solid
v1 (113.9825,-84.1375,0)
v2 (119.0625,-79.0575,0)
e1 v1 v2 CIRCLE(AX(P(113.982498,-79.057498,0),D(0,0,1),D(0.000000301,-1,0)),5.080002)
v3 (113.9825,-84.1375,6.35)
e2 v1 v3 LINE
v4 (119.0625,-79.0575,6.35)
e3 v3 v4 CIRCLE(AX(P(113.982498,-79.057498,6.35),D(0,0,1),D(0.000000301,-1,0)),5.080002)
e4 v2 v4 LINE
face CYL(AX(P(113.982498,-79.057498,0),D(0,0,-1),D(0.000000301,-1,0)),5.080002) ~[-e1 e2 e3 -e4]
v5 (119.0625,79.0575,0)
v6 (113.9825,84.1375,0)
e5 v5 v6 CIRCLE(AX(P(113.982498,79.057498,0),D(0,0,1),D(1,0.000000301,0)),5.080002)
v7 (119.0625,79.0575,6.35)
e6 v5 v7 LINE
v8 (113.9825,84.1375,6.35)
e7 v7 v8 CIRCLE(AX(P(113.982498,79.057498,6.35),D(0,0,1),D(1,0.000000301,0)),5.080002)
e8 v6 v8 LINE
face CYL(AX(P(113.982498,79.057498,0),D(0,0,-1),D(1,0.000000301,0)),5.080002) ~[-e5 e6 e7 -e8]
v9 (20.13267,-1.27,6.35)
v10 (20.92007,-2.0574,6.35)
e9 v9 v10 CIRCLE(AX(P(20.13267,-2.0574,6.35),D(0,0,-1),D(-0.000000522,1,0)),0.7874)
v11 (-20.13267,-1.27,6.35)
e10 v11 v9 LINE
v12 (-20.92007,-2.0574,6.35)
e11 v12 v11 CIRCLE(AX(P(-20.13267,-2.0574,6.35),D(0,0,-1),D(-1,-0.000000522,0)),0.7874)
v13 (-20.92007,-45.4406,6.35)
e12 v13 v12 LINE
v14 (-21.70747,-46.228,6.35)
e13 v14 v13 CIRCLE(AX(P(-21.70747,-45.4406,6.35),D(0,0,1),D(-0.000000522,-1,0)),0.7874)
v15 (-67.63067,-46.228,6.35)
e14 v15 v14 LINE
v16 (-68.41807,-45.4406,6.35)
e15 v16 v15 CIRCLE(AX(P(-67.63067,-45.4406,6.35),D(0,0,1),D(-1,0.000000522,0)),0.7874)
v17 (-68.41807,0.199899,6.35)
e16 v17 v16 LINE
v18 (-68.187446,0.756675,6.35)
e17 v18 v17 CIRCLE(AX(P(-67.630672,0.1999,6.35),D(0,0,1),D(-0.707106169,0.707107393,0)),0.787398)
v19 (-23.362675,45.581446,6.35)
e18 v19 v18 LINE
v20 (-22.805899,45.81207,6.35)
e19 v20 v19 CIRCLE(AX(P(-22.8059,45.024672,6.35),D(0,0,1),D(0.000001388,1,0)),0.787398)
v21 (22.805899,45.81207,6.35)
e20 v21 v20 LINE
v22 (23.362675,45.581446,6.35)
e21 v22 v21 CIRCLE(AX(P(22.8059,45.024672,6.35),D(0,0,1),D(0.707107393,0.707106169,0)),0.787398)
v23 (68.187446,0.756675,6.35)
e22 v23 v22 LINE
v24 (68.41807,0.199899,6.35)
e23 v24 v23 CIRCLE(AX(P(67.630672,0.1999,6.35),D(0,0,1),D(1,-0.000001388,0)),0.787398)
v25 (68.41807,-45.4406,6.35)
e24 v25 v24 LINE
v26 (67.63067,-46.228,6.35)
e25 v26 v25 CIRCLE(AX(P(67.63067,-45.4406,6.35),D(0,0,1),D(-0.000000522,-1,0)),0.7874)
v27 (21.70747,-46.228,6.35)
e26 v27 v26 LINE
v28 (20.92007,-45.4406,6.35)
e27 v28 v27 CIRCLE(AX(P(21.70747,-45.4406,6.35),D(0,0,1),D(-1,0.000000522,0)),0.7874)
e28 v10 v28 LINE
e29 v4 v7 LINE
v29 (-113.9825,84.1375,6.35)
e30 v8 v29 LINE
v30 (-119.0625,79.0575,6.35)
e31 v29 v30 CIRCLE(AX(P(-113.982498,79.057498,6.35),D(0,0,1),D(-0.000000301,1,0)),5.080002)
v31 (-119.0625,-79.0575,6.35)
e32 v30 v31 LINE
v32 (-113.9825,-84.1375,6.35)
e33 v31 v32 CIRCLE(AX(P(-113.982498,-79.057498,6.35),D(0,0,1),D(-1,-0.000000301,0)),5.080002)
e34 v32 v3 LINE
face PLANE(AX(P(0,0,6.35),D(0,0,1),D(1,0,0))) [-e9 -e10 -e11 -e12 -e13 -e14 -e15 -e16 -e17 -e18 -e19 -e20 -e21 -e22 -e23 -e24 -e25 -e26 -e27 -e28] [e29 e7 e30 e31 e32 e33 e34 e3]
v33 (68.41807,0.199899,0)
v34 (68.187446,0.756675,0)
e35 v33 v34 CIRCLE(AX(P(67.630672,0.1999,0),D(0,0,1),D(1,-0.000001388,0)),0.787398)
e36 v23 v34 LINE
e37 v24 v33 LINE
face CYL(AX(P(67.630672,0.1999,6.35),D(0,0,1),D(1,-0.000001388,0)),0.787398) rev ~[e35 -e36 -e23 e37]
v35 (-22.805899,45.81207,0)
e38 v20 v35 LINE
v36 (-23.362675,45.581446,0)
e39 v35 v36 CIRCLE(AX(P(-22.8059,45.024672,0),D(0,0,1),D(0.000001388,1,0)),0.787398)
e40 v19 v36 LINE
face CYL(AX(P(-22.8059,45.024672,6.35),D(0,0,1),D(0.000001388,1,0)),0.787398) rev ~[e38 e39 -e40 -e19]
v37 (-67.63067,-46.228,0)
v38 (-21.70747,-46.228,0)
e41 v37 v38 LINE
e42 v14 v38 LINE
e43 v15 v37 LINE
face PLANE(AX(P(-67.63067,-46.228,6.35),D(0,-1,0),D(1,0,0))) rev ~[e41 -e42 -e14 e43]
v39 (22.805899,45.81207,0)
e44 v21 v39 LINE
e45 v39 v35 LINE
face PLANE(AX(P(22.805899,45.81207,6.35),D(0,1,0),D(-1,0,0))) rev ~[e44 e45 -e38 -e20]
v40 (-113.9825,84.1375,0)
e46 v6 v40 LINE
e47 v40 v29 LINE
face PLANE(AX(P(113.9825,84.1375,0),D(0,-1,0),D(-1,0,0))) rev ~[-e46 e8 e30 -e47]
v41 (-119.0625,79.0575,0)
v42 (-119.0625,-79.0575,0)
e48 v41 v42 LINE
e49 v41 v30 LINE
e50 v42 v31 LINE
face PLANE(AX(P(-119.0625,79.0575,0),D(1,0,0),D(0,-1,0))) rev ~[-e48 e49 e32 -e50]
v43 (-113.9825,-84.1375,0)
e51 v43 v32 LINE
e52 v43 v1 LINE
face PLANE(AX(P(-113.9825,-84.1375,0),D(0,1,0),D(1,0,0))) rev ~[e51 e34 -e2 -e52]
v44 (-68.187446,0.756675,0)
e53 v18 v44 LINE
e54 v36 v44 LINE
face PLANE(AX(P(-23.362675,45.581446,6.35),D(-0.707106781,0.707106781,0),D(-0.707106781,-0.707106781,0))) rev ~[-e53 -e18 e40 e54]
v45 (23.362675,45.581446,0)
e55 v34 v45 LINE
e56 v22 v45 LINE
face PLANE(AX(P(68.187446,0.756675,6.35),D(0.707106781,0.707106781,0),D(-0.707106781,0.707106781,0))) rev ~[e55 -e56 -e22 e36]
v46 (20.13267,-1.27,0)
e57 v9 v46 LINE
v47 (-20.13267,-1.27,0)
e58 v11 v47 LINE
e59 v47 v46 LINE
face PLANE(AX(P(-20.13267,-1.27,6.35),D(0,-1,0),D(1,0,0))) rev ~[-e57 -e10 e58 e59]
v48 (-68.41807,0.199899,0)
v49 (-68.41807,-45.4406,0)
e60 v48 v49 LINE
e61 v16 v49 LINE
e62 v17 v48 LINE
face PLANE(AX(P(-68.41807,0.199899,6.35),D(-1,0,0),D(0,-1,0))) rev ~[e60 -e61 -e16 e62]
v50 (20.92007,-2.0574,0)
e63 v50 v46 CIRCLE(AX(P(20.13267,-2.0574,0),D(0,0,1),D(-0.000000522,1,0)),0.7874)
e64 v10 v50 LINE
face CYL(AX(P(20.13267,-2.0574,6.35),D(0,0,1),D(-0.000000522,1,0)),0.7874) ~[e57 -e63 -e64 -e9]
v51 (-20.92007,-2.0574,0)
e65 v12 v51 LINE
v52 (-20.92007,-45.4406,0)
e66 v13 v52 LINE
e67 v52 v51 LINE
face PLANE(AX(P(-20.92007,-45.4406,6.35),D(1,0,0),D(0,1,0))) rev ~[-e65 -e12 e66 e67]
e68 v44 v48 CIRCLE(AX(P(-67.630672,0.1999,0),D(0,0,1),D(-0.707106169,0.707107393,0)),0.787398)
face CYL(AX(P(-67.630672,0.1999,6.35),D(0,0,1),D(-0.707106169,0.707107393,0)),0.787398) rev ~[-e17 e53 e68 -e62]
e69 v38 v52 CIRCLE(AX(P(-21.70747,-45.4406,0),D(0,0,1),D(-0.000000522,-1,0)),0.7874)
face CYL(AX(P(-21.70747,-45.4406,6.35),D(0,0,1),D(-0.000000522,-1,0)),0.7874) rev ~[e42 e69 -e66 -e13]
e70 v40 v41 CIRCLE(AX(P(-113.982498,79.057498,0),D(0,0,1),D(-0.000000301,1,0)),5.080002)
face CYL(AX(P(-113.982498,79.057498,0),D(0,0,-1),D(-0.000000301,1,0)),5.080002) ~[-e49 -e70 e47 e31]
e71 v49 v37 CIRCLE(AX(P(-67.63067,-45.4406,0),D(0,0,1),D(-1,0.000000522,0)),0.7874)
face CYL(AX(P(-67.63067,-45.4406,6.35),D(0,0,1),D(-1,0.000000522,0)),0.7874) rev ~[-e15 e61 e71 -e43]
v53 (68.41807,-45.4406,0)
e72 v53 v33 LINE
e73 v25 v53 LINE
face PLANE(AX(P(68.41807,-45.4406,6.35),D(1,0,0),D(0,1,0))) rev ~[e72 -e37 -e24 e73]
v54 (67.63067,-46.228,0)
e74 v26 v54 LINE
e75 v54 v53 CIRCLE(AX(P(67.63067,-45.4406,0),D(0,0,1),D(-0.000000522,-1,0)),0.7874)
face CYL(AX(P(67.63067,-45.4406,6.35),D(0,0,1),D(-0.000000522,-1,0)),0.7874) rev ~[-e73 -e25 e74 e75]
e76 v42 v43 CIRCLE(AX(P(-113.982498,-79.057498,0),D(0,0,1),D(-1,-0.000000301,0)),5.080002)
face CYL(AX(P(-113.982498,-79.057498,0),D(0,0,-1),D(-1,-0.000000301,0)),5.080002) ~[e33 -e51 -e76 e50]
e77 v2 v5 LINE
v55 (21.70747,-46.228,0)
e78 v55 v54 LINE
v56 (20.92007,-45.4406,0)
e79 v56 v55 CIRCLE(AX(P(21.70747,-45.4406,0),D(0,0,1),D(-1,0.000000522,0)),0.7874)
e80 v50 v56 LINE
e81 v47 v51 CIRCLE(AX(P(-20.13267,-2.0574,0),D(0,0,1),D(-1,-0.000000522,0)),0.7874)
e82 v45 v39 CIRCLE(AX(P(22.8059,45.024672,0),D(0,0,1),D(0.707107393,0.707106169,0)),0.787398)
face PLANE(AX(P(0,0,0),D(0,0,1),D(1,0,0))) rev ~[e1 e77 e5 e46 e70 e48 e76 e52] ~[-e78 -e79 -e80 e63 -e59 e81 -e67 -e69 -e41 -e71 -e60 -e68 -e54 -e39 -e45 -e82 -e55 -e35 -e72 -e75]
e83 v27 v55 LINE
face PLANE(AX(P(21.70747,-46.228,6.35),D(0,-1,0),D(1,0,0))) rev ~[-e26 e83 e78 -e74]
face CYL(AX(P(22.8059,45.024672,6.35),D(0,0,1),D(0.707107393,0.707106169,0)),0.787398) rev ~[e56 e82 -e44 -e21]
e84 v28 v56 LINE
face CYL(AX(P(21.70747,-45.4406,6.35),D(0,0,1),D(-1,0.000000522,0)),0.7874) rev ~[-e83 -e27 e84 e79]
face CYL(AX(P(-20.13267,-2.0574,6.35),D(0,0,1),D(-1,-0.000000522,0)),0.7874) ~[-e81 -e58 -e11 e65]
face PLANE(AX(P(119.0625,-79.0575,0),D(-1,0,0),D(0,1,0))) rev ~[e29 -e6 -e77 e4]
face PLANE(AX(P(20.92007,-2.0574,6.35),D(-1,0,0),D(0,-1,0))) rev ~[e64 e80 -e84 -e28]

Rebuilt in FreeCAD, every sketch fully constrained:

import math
import FreeCAD as App
import Part
import Sketcher

V = App.Vector
Q = App.Units.Quantity

doc = App.newDocument("Part")
body = doc.addObject("PartDesign::Body", "Body")

# Sketch on XY plane
sketch1 = body.newObject("Sketcher::SketchObject", "Sketch")
sketch1.AttachmentSupport = (doc.getObject("XY_Plane"), [""])
sketch1.MapMode = "FlatFace"
sketch1.addGeometry(Part.LineSegment(V(113.9825, 84.1375, 0), V(-113.9825, 84.1375, 0)), False)
sketch1.addGeometry(Part.ArcOfCircle(Part.Circle(V(-113.982498, 79.057498, 0), V(0, 0, 1), 5.080002), math.radians(90.000017), math.radians(179.999983)), False)
sketch1.addGeometry(Part.LineSegment(V(-119.0625, 79.0575, 0), V(-119.0625, -79.0575, 0)), False)
sketch1.addGeometry(Part.ArcOfCircle(Part.Circle(V(-113.982498, -79.057498, 0), V(0, 0, 1), 5.080002), math.radians(-179.999983), math.radians(-90.000017)), False)
sketch1.addGeometry(Part.LineSegment(V(-113.9825, -84.1375, 0), V(113.9825, -84.1375, 0)), False)
sketch1.addGeometry(Part.ArcOfCircle(Part.Circle(V(113.982498, -79.057498, 0), V(0, 0, 1), 5.080002), math.radians(-89.999983), math.radians(-0.000017)), False)
sketch1.addGeometry(Part.LineSegment(V(119.0625, -79.0575, 0), V(119.0625, 79.0575, 0)), False)
sketch1.addGeometry(Part.ArcOfCircle(Part.Circle(V(113.982498, 79.057498, 0), V(0, 0, 1), 5.080002), math.radians(0.000017), math.radians(89.999983)), False)
sketch1.addConstraint(Sketcher.Constraint("Tangent", 0, 2, 1, 1))
sketch1.addConstraint(Sketcher.Constraint("Tangent", 1, 2, 2, 1))
sketch1.addConstraint(Sketcher.Constraint("Tangent", 2, 2, 3, 1))
sketch1.addConstraint(Sketcher.Constraint("Tangent", 3, 2, 4, 1))
sketch1.addConstraint(Sketcher.Constraint("Tangent", 4, 2, 5, 1))
sketch1.addConstraint(Sketcher.Constraint("Tangent", 5, 2, 6, 1))
sketch1.addConstraint(Sketcher.Constraint("Tangent", 6, 2, 7, 1))
sketch1.addConstraint(Sketcher.Constraint("Tangent", 7, 2, 0, 1))
sketch1.addConstraint(Sketcher.Constraint("Horizontal", 0))
sketch1.addConstraint(Sketcher.Constraint("Vertical", 2))
sketch1.addConstraint(Sketcher.Constraint("Horizontal", 4))
sketch1.addConstraint(Sketcher.Constraint("Vertical", 6))
sketch1.addConstraint(Sketcher.Constraint("Equal", 1, 3))
sketch1.addConstraint(Sketcher.Constraint("Equal", 3, 5))
sketch1.addConstraint(Sketcher.Constraint("Equal", 5, 7))
sketch1.addConstraint(Sketcher.Constraint("Symmetric", 1, 3, 5, 3, -1, 1))
sketch1.addConstraint(Sketcher.Constraint("Radius", 1, Q("0.2000001 in")))
sketch1.addConstraint(Sketcher.Constraint("DistanceX", 0, 2, 0, 1, Q("8.975 in")))
sketch1.addConstraint(Sketcher.Constraint("DistanceY", 2, 2, 2, 1, Q("6.225 in")))
pad1 = body.newObject("PartDesign::Pad", "Pad")
pad1.Profile = sketch1
pad1.Length = Q("0.25 in")

# Sketch on XY plane
sketch2 = body.newObject("Sketcher::SketchObject", "Sketch001")
sketch2.AttachmentSupport = (doc.getObject("XY_Plane"), [""])
sketch2.MapMode = "FlatFace"
sketch2.AttachmentOffset = App.Placement(V(0, 0, 0.25 * 25.4), App.Rotation())
sketch2.addGeometry(Part.LineSegment(V(22.606, 44.54207, 0), V(-22.606, 44.54207, 0)), False)
sketch2.addGeometry(Part.LineSegment(V(-22.606, 44.54207, 0), V(-67.14807, 0, 0)), False)
sketch2.addGeometry(Part.LineSegment(V(-67.14807, 0, 0), V(-67.14807, -44.958, 0)), False)
sketch2.addGeometry(Part.LineSegment(V(-67.14807, -44.958, 0), V(-22.19007, -44.958, 0)), False)
sketch2.addGeometry(Part.LineSegment(V(-22.19007, -44.958, 0), V(-22.19007, 0, 0)), False)
sketch2.addGeometry(Part.LineSegment(V(-22.19007, 0, 0), V(22.19007, 0, 0)), False)
sketch2.addGeometry(Part.LineSegment(V(22.19007, 0, 0), V(22.19007, -44.958, 0)), False)
sketch2.addGeometry(Part.LineSegment(V(22.19007, -44.958, 0), V(67.14807, -44.958, 0)), False)
sketch2.addGeometry(Part.LineSegment(V(67.14807, -44.958, 0), V(67.14807, 0, 0)), False)
sketch2.addGeometry(Part.LineSegment(V(67.14807, 0, 0), V(22.606, 44.54207, 0)), False)
sketch2.addConstraint(Sketcher.Constraint("Coincident", 0, 2, 1, 1))
sketch2.addConstraint(Sketcher.Constraint("Coincident", 1, 2, 2, 1))
sketch2.addConstraint(Sketcher.Constraint("Coincident", 2, 2, 3, 1))
sketch2.addConstraint(Sketcher.Constraint("Coincident", 3, 2, 4, 1))
sketch2.addConstraint(Sketcher.Constraint("Coincident", 4, 2, 5, 1))
sketch2.addConstraint(Sketcher.Constraint("Coincident", 5, 2, 6, 1))
sketch2.addConstraint(Sketcher.Constraint("Coincident", 6, 2, 7, 1))
sketch2.addConstraint(Sketcher.Constraint("Coincident", 7, 2, 8, 1))
sketch2.addConstraint(Sketcher.Constraint("Coincident", 8, 2, 9, 1))
sketch2.addConstraint(Sketcher.Constraint("Coincident", 9, 2, 0, 1))
sketch2.addConstraint(Sketcher.Constraint("Horizontal", 0))
sketch2.addConstraint(Sketcher.Constraint("Vertical", 2))
sketch2.addConstraint(Sketcher.Constraint("Horizontal", 3))
sketch2.addConstraint(Sketcher.Constraint("Vertical", 4))
sketch2.addConstraint(Sketcher.Constraint("Horizontal", 5))
sketch2.addConstraint(Sketcher.Constraint("Vertical", 6))
sketch2.addConstraint(Sketcher.Constraint("Horizontal", 7))
sketch2.addConstraint(Sketcher.Constraint("Vertical", 8))
sketch2.addConstraint(Sketcher.Constraint("Symmetric", 4, 2, 5, 2, -1, 1))
sketch2.addConstraint(Sketcher.Constraint("Symmetric", 1, 2, 8, 2, -1, 1))
sketch2.addConstraint(Sketcher.Constraint("PointOnObject", 1, 2, -1))
sketch2.addConstraint(Sketcher.Constraint("Perpendicular", 1, 9))
sketch2.addConstraint(Sketcher.Constraint("Horizontal", 3, 2, 6, 2))
sketch2.addConstraint(Sketcher.Constraint("Equal", 7, 2))
sketch2.addConstraint(Sketcher.Constraint("Equal", 1, 9))
sketch2.addConstraint(Sketcher.Constraint("DistanceX", 0, 2, 0, 1, Q("1.78 in")))
sketch2.addConstraint(Sketcher.Constraint("DistanceX", 3, 1, 3, 2, Q("1.77 in")))
sketch2.addConstraint(Sketcher.Constraint("Distance", 1, Q("2.48 in")))
pocket1 = body.newObject("PartDesign::Pocket", "Pocket")
pocket1.Profile = sketch2
pocket1.Length = Q("1 in")

# Sketch on XY plane
sketch3 = body.newObject("Sketcher::SketchObject", "Sketch002")
sketch3.AttachmentSupport = (doc.getObject("XY_Plane"), [""])
sketch3.MapMode = "FlatFace"
sketch3.AttachmentOffset = App.Placement(V(0, 0, 0.25 * 25.4), App.Rotation())
sketch3.addGeometry(Part.ArcOfCircle(Part.Circle(V(-22.8059, 45.024672, 0), V(0, 0, 1), 0.787398), math.radians(89.99992), math.radians(135.00005)), False)
sketch3.addGeometry(Part.LineSegment(V(-23.362675, 45.581446, 0), V(-68.187446, 0.756675, 0)), False)
sketch3.addGeometry(Part.ArcOfCircle(Part.Circle(V(-67.630672, 0.1999, 0), V(0, 0, 1), 0.787398), math.radians(134.99995), math.radians(180.00008)), False)
sketch3.addGeometry(Part.LineSegment(V(-68.41807, 0.199899, 0), V(-68.41807, -45.4406, 0)), False)
sketch3.addGeometry(Part.ArcOfCircle(Part.Circle(V(-67.63067, -45.4406, 0), V(0, 0, 1), 0.7874), math.radians(179.99997), math.radians(270.00003)), False)
sketch3.addGeometry(Part.LineSegment(V(-67.63067, -46.228, 0), V(-21.70747, -46.228, 0)), False)
sketch3.addGeometry(Part.ArcOfCircle(Part.Circle(V(-21.70747, -45.4406, 0), V(0, 0, 1), 0.7874), math.radians(-90.00003), math.radians(0.00003)), False)
sketch3.addGeometry(Part.LineSegment(V(-20.92007, -45.4406, 0), V(-20.92007, -2.0574, 0)), False)
sketch3.addGeometry(Part.ArcOfCircle(Part.Circle(V(-20.13267, -2.0574, 0), V(0, 0, 1), 0.7874), math.radians(89.99997), math.radians(180.00003)), False)
sketch3.addGeometry(Part.LineSegment(V(-20.13267, -1.27, 0), V(20.13267, -1.27, 0)), False)
sketch3.addGeometry(Part.ArcOfCircle(Part.Circle(V(20.13267, -2.0574, 0), V(0, 0, 1), 0.7874), math.radians(-0.00003), math.radians(90.00003)), False)
sketch3.addGeometry(Part.LineSegment(V(20.92007, -2.0574, 0), V(20.92007, -45.4406, 0)), False)
sketch3.addGeometry(Part.ArcOfCircle(Part.Circle(V(21.70747, -45.4406, 0), V(0, 0, 1), 0.7874), math.radians(179.99997), math.radians(270.00003)), False)
sketch3.addGeometry(Part.LineSegment(V(21.70747, -46.228, 0), V(67.63067, -46.228, 0)), False)
sketch3.addGeometry(Part.ArcOfCircle(Part.Circle(V(67.63067, -45.4406, 0), V(0, 0, 1), 0.7874), math.radians(-90.00003), math.radians(0.00003)), False)
sketch3.addGeometry(Part.LineSegment(V(68.41807, -45.4406, 0), V(68.41807, 0.199899, 0)), False)
sketch3.addGeometry(Part.ArcOfCircle(Part.Circle(V(67.630672, 0.1999, 0), V(0, 0, 1), 0.787398), math.radians(-0.00008), math.radians(45.00005)), False)
sketch3.addGeometry(Part.LineSegment(V(68.187446, 0.756675, 0), V(23.362675, 45.581446, 0)), False)
sketch3.addGeometry(Part.ArcOfCircle(Part.Circle(V(22.8059, 45.024672, 0), V(0, 0, 1), 0.787398), math.radians(44.99995), math.radians(90.00008)), False)
sketch3.addGeometry(Part.LineSegment(V(22.805899, 45.81207, 0), V(-22.805899, 45.81207, 0)), False)
sketch3.addConstraint(Sketcher.Constraint("Tangent", 0, 2, 1, 1))
sketch3.addConstraint(Sketcher.Constraint("Tangent", 1, 2, 2, 1))
sketch3.addConstraint(Sketcher.Constraint("Tangent", 2, 2, 3, 1))
sketch3.addConstraint(Sketcher.Constraint("Tangent", 3, 2, 4, 1))
sketch3.addConstraint(Sketcher.Constraint("Tangent", 4, 2, 5, 1))
sketch3.addConstraint(Sketcher.Constraint("Tangent", 5, 2, 6, 1))
sketch3.addConstraint(Sketcher.Constraint("Tangent", 6, 2, 7, 1))
sketch3.addConstraint(Sketcher.Constraint("Tangent", 7, 2, 8, 2))
sketch3.addConstraint(Sketcher.Constraint("Tangent", 8, 1, 9, 1))
sketch3.addConstraint(Sketcher.Constraint("Tangent", 9, 2, 10, 2))
sketch3.addConstraint(Sketcher.Constraint("Tangent", 10, 1, 11, 1))
sketch3.addConstraint(Sketcher.Constraint("Tangent", 11, 2, 12, 1))
sketch3.addConstraint(Sketcher.Constraint("Tangent", 12, 2, 13, 1))
sketch3.addConstraint(Sketcher.Constraint("Tangent", 13, 2, 14, 1))
sketch3.addConstraint(Sketcher.Constraint("Tangent", 14, 2, 15, 1))
sketch3.addConstraint(Sketcher.Constraint("Tangent", 15, 2, 16, 1))
sketch3.addConstraint(Sketcher.Constraint("Tangent", 16, 2, 17, 1))
sketch3.addConstraint(Sketcher.Constraint("Tangent", 17, 2, 18, 1))
sketch3.addConstraint(Sketcher.Constraint("Tangent", 18, 2, 19, 1))
sketch3.addConstraint(Sketcher.Constraint("Tangent", 19, 2, 0, 1))
sketch3.addConstraint(Sketcher.Constraint("Vertical", 3))
sketch3.addConstraint(Sketcher.Constraint("Horizontal", 5))
sketch3.addConstraint(Sketcher.Constraint("Vertical", 7))
sketch3.addConstraint(Sketcher.Constraint("Horizontal", 9))
sketch3.addConstraint(Sketcher.Constraint("Vertical", 11))
sketch3.addConstraint(Sketcher.Constraint("Horizontal", 13))
sketch3.addConstraint(Sketcher.Constraint("Vertical", 15))
sketch3.addConstraint(Sketcher.Constraint("Horizontal", 19))
sketch3.addConstraint(Sketcher.Constraint("Equal", 0, 2))
sketch3.addConstraint(Sketcher.Constraint("Equal", 2, 4))
sketch3.addConstraint(Sketcher.Constraint("Equal", 4, 6))
sketch3.addConstraint(Sketcher.Constraint("Equal", 6, 8))
sketch3.addConstraint(Sketcher.Constraint("Equal", 8, 10))
sketch3.addConstraint(Sketcher.Constraint("Equal", 10, 12))
sketch3.addConstraint(Sketcher.Constraint("Equal", 12, 14))
sketch3.addConstraint(Sketcher.Constraint("Equal", 14, 16))
sketch3.addConstraint(Sketcher.Constraint("Equal", 16, 18))
sketch3.addConstraint(Sketcher.Constraint("Symmetric", 6, 3, 12, 3, -2))
sketch3.addConstraint(Sketcher.Constraint("Symmetric", 2, 3, 16, 3, -2))
sketch3.addConstraint(Sketcher.Constraint("Perpendicular", 1, 17))
sketch3.addConstraint(Sketcher.Constraint("Horizontal", 1, 2, 16, 2))
sketch3.addConstraint(Sketcher.Constraint("Radius", 0, Q("0.0309999 in")))
sketch3.addConstraint(Sketcher.Constraint("DistanceX", 5, 1, 5, 2, Q("1.808 in")))
sketch3.addConstraint(Sketcher.Constraint("DistanceY", 7, 1, 7, 2, Q("1.708 in")))
sketch3.addConstraint(Sketcher.Constraint("DistanceY", 4, 2, -1, 1, Q("1.82 in")))
sketch3.addConstraint(Sketcher.Constraint("DistanceY", 3, 2, 3, 1, 45.640499))
sketch3.addConstraint(Sketcher.Constraint("Distance", 1, 63.391799))
sketch3.addConstraint(Sketcher.Constraint("DistanceX", 9, 1, 9, 2, 40.26534))
pocket2 = body.newObject("PartDesign::Pocket", "Pocket001")
pocket2.Profile = sketch3
pocket2.Length = Q("1 in")

doc.recompute()
